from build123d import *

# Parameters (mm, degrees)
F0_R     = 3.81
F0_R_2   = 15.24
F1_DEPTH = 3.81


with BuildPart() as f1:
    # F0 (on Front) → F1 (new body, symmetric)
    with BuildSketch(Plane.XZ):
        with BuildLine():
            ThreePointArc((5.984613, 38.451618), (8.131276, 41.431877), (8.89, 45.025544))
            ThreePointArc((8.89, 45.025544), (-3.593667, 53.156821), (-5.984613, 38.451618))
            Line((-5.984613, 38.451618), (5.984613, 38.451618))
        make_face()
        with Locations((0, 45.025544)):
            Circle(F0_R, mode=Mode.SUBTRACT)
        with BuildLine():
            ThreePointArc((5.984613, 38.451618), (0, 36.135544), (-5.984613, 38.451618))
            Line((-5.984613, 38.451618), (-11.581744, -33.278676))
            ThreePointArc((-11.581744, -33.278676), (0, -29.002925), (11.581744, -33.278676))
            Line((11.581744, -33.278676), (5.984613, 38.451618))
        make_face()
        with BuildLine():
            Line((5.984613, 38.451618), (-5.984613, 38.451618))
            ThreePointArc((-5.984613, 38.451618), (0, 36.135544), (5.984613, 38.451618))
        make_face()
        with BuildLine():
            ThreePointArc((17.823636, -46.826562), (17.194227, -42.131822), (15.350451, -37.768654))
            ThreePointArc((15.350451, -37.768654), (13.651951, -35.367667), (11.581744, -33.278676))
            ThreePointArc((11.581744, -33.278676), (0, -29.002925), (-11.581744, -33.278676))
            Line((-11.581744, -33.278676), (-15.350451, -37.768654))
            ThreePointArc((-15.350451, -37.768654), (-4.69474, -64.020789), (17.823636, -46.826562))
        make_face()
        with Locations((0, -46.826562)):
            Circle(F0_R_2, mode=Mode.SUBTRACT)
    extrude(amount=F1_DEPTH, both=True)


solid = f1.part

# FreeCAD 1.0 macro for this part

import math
import FreeCAD as App
import Part
import Sketcher
from FreeCAD import Vector
Q = App.Units.Quantity

doc = App.newDocument("Part")
body = doc.addObject("PartDesign::Body", "Body")

sketch1 = body.newObject("Sketcher::SketchObject", "Sketch")
sketch1.AttachmentSupport = (doc.getObject("XZ_Plane"), [""])
sketch1.MapMode = "FlatFace"
sketch1.addGeometry([
    Part.ArcOfCircle(Part.Circle(Vector(-0.000004, 45.025546, 0), Vector(0, 0, 1), 8.890004), math.radians(-47.686641), math.radians(-0.000012)),
    Part.ArcOfCircle(Part.Circle(Vector(0, 45.025544, 0), Vector(0, 0, 1), 8.89), math.radians(-0.000003), math.radians(227.686652)),
    Part.LineSegment(Vector(-5.984613, 38.451618, 0), Vector(-11.581744, -33.278676, 0)),
    Part.LineSegment(Vector(-11.581744, -33.278676, 0), Vector(-15.350451, -37.768654, 0)),
    Part.ArcOfCircle(Part.Circle(Vector(-0.000001, -46.826562, 0), Vector(0, 0, 1), 17.823637), math.radians(149.456233), math.radians(360)),
    Part.ArcOfCircle(Part.Circle(Vector(0.000002, -46.826559, 0), Vector(0, 0, 1), 17.823634), math.radians(-0.00001), math.radians(30.543762)),
    Part.ArcOfCircle(Part.Circle(Vector(0.000025, -46.826545, 0), Vector(0, 0, 1), 17.823607), math.radians(30.54376), math.radians(49.473733)),
    Part.LineSegment(Vector(11.581744, -33.278676, 0), Vector(5.984613, 38.451618, 0)),
    Part.Circle(Vector(0, -46.826562, 0), Vector(0, 0, 1), 15.24),
    Part.Circle(Vector(0, 45.025544, 0), Vector(0, 0, 1), 3.81),
], False)
sketch1.addConstraint([
    Sketcher.Constraint("Tangent", 0, 2, 1, 1),
    Sketcher.Constraint("Coincident", 1, 2, 2, 1),
    Sketcher.Constraint("Coincident", 2, 2, 3, 1),
    Sketcher.Constraint("Coincident", 3, 2, 4, 1),
    Sketcher.Constraint("Tangent", 4, 2, 5, 1),
    Sketcher.Constraint("Tangent", 5, 2, 6, 1),
    Sketcher.Constraint("Coincident", 6, 2, 7, 1),
    Sketcher.Constraint("Coincident", 7, 2, 0, 1),
    Sketcher.Constraint("Coincident", 8, 3, 4, 3),
    Sketcher.Constraint("Coincident", 9, 3, 0, 3),
    Sketcher.Constraint("Symmetric", 3, 2, 5, 2, -2),
    Sketcher.Constraint("Symmetric", 2, 2, 6, 2, -2),
    Sketcher.Constraint("Symmetric", 1, 2, 7, 2, -2),
    Sketcher.Constraint("PointOnObject", 1, 3, -2),
    Sketcher.Constraint("PointOnObject", 4, 3, -2),
    Sketcher.Constraint("Horizontal", 9, 3, 0, 2),
    Sketcher.Constraint("Horizontal", 8, 3, 4, 2),
    Sketcher.Constraint("Diameter", 8, Q("1.2 in")),
    Sketcher.Constraint("Diameter", 9, Q("0.3 in")),
    Sketcher.Constraint("Radius", 0, Q("0.3500001 in")),
    Sketcher.Constraint("Radius", 4, 17.823637),
    Sketcher.Constraint("Radius", 6, 17.823607),
    Sketcher.Constraint("Distance", 3, 5.862001),
    Sketcher.Constraint("DistanceY", 4, 3, -1, 1, 46.826562),
    Sketcher.Constraint("DistanceY", -1, 1, 1, 2, 38.451618),
    Sketcher.Constraint("DistanceX", 3, 2, -1, 1, 15.350451),
    Sketcher.Constraint("DistanceY", 6, 3, 1, 3, 91.852089),
])
pad1 = body.newObject("PartDesign::Pad", "Pad")
pad1.Profile = sketch1
pad1.Length = Q("0.3 in")
pad1.Midplane = True

doc.recompute()
